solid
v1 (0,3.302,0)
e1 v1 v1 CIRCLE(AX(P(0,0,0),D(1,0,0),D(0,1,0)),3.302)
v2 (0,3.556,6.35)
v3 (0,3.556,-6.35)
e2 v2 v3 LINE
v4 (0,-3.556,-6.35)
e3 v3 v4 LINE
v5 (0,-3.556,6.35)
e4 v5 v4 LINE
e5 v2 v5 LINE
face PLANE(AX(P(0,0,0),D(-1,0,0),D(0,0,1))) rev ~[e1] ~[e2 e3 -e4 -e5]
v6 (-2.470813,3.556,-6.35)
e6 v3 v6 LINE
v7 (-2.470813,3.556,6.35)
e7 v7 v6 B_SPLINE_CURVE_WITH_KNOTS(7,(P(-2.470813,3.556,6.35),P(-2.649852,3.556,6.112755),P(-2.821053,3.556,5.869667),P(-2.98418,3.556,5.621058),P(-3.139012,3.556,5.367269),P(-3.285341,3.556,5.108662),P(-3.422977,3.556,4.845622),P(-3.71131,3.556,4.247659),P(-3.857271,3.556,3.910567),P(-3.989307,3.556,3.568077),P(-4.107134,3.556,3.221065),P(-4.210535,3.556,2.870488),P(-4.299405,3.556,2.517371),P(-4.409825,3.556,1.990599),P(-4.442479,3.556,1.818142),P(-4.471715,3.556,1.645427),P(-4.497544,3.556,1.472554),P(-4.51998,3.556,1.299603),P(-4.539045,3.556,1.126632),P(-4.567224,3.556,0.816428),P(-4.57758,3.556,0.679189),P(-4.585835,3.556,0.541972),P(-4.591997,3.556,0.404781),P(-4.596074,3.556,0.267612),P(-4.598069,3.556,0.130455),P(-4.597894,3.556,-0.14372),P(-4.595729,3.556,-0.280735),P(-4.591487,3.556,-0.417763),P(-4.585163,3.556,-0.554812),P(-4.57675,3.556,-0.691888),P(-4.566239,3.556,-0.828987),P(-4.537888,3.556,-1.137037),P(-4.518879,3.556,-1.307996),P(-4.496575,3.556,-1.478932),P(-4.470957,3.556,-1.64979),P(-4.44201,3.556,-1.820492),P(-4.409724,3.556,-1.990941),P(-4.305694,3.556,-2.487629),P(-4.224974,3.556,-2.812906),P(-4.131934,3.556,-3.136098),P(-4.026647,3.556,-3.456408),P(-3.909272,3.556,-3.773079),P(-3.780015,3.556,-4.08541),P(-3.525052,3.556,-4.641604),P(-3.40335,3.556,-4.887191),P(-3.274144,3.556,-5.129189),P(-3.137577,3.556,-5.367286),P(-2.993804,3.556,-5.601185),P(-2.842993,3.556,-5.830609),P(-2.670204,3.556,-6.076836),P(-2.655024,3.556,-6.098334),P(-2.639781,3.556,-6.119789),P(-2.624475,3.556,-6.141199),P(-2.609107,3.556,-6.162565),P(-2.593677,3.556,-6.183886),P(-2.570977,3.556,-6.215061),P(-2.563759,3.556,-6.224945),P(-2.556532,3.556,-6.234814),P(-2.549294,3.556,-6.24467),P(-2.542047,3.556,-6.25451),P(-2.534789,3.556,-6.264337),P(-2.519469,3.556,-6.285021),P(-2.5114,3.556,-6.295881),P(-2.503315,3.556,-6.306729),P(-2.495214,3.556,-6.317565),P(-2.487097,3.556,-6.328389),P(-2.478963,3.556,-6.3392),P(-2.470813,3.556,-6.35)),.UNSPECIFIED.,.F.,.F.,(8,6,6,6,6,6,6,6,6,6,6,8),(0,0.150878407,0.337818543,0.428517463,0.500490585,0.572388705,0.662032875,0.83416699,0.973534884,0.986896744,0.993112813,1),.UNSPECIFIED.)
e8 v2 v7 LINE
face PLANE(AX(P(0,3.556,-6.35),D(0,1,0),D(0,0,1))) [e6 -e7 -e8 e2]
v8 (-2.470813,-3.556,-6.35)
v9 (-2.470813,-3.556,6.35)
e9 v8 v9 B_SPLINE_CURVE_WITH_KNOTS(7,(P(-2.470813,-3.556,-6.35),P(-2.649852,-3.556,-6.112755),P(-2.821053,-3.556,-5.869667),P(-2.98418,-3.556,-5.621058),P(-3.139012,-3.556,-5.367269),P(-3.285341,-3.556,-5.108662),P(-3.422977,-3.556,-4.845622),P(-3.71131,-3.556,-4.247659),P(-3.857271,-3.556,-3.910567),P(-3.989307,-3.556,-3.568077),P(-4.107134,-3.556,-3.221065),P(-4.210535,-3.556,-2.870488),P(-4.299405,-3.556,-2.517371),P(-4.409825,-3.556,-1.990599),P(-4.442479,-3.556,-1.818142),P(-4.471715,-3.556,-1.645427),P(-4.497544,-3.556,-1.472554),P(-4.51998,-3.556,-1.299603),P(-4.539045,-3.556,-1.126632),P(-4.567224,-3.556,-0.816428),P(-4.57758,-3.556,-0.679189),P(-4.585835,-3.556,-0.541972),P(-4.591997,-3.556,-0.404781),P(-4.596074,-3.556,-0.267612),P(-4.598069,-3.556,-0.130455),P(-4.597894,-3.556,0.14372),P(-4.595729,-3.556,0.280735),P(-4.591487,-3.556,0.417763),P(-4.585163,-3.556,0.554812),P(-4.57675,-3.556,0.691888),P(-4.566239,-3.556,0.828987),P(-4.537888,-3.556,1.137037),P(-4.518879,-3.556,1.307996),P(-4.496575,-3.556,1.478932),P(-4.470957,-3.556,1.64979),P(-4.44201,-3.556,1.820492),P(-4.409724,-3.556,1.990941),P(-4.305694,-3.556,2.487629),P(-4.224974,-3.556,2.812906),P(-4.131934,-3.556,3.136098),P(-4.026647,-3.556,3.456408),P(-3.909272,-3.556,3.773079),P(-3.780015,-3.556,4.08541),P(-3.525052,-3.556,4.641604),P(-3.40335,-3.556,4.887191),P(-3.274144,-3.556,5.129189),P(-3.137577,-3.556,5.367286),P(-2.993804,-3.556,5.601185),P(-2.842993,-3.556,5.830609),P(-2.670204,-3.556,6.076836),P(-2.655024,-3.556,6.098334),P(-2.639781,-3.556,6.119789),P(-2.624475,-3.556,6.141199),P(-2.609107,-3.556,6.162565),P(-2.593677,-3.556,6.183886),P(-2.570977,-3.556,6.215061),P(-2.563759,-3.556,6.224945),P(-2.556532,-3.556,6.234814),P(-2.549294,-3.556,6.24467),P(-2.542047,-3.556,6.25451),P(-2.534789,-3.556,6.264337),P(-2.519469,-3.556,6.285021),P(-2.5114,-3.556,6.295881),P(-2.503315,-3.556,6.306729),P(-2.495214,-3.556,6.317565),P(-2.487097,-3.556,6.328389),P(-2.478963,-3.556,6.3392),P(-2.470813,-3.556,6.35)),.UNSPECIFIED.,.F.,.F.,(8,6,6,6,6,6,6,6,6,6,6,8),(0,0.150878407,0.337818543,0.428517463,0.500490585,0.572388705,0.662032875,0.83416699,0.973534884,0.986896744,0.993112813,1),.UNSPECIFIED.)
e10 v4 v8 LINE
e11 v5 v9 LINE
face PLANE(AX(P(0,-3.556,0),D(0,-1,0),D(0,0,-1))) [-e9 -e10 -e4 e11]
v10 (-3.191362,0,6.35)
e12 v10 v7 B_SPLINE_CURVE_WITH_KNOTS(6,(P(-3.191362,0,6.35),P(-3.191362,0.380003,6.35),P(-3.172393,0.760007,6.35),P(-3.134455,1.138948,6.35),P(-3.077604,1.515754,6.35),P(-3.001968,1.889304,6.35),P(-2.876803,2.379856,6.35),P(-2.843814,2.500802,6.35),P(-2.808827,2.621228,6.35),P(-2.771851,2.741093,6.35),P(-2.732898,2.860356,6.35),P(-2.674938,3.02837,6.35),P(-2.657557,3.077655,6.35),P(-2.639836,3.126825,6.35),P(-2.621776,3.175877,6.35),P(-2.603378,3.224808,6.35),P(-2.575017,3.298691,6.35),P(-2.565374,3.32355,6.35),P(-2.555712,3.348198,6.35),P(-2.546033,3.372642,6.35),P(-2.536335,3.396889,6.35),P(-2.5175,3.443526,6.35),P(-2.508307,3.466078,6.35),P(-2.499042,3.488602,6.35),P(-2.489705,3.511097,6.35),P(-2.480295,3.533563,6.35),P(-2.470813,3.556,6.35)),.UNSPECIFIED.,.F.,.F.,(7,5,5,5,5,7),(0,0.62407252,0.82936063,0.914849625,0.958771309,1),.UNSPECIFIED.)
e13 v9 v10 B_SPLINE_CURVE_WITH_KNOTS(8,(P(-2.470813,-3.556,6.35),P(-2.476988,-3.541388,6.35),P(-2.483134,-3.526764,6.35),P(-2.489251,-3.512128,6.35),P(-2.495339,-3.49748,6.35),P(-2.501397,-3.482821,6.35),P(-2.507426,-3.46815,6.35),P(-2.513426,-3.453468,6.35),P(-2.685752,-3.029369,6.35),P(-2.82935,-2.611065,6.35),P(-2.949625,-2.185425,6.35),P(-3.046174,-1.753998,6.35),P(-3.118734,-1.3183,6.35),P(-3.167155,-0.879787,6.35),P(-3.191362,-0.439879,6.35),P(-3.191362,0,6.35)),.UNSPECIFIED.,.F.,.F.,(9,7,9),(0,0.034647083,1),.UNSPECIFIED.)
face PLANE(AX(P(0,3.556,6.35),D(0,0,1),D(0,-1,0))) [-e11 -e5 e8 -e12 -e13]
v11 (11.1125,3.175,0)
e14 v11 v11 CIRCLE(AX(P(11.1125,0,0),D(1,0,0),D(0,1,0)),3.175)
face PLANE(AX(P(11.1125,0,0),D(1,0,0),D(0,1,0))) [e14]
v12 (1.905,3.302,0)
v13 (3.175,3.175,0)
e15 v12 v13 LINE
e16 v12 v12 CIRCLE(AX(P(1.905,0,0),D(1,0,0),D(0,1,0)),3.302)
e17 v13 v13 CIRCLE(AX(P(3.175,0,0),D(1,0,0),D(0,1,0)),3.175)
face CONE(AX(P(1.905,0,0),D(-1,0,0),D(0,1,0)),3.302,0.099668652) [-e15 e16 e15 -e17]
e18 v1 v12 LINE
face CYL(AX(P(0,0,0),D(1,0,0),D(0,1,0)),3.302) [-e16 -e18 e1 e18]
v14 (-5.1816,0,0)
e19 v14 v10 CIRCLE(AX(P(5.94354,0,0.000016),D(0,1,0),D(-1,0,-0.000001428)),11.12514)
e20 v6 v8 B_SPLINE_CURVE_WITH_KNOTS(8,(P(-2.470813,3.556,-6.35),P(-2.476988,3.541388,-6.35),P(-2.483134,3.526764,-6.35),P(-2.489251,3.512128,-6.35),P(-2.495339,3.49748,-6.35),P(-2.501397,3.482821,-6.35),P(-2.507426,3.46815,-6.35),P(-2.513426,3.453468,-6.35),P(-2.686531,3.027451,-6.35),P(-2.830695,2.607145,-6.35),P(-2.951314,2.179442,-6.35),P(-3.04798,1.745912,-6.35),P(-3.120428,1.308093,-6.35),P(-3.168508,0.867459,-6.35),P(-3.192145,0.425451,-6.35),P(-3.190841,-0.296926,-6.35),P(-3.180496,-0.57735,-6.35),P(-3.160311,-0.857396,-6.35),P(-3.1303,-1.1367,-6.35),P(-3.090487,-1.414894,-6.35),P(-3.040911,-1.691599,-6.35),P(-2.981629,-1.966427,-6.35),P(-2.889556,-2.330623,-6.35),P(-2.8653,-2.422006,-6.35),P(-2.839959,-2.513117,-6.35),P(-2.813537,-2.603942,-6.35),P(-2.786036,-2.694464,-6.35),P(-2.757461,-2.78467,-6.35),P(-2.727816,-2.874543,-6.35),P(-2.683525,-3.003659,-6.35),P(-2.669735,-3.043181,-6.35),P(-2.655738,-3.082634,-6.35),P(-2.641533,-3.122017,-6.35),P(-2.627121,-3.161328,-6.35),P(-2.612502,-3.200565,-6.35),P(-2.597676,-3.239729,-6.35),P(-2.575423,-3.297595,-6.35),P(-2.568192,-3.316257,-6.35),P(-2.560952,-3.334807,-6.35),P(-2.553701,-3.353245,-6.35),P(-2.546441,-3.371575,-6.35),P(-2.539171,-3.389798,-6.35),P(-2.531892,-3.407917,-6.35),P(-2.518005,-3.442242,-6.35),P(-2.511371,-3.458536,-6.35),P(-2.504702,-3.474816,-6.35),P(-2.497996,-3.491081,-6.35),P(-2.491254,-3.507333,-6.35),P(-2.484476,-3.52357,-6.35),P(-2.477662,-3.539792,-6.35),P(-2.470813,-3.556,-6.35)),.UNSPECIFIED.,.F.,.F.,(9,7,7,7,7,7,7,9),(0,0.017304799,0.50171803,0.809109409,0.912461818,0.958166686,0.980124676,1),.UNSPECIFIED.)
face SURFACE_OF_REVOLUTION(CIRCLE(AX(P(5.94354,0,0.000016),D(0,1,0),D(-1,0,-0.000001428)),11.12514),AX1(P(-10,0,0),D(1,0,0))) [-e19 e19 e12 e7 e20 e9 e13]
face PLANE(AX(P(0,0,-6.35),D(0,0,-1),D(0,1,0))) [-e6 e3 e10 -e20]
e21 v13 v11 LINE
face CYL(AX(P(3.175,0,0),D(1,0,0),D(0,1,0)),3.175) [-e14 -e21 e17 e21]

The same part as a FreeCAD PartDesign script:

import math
import FreeCAD as App
import Part
import Sketcher
Q = App.Units.Quantity

doc = App.newDocument("Part")
params = doc.addObject("Spreadsheet::Sheet", "Params")
for row, (alias, value) in enumerate([
    ("sketch1_width", "0.4375 in"),
    ("sketch1_width2", "0.3125 in"),
    ("sketch1_height", "0.13 in"),
    ("sketch1_height2", "0.125 in"),
    ("revolution_angle", "360 deg"),
    ("sketch2_height", "0.5 in"),
    ("sketch2_width", "0.28 in"),
    ("pad1_length", "0.204 in"),
    ("sketch3_radius", "0.438 in"),
    ("sketch3_height", "0.375 in"),
    ("groove_angle", "360 deg"),
], start=1):
    params.set(f"A{row}", alias)
    params.set(f"B{row}", "=" + value)
    params.setAlias(f"B{row}", alias)

body = doc.addObject("PartDesign::Body", "Body")

sketch1 = doc.addObject("Sketcher::SketchObject", "Sketch")
body.addObject(sketch1)
sketch1.AttachmentSupport = (doc.XY_Plane, [""])
sketch1.MapMode = "FlatFace"
sketch1.addGeometry([
    Part.LineSegment(App.Vector(1.9, 3.3, 0), App.Vector(0, 3.3, 0)),
    Part.LineSegment(App.Vector(0, 3.3, 0), App.Vector(0, 0, 0)),
    Part.LineSegment(App.Vector(0, 0, 0), App.Vector(11.1, 0, 0)),
    Part.LineSegment(App.Vector(11.1, 0, 0), App.Vector(11.1, 3.2, 0)),
    Part.LineSegment(App.Vector(11.1, 3.2, 0), App.Vector(3.2, 3.2, 0)),
    Part.LineSegment(App.Vector(3.2, 3.2, 0), App.Vector(1.9, 3.3, 0)),
], False)
sketch1.addConstraint([
    Sketcher.Constraint("Coincident", 0, 2, 1, 1),
    Sketcher.Constraint("Coincident", 1, 2, 2, 1),
    Sketcher.Constraint("Coincident", 2, 2, 3, 1),
    Sketcher.Constraint("Coincident", 3, 2, 4, 1),
    Sketcher.Constraint("Coincident", 4, 2, 5, 1),
    Sketcher.Constraint("Coincident", 5, 2, 0, 1),
    Sketcher.Constraint("Horizontal", 0),
    Sketcher.Constraint("Vertical", 1),
    Sketcher.Constraint("Horizontal", 2),
    Sketcher.Constraint("Vertical", 3),
    Sketcher.Constraint("Horizontal", 4),
    Sketcher.Constraint("Coincident", 1, 2, -1, 1),
    Sketcher.Constraint("DistanceX", 2, 1, 2, 2, Q("0.4375 in")),
    Sketcher.Constraint("DistanceX", 4, 2, 4, 1, Q("0.3125 in")),
    Sketcher.Constraint("DistanceX", 5, 2, 4, 2, Q("0.05 in")),
    Sketcher.Constraint("DistanceY", 1, 2, 1, 1, Q("0.13 in")),
    Sketcher.Constraint("DistanceY", 3, 1, 3, 2, Q("0.125 in")),
])
sketch1.setExpression("Constraints[12]", "Params.sketch1_width")
sketch1.setExpression("Constraints[13]", "Params.sketch1_width2")
sketch1.setExpression("Constraints[15]", "Params.sketch1_height")
sketch1.setExpression("Constraints[16]", "Params.sketch1_height2")
revolution = doc.addObject("PartDesign::Revolution", "Revolution")
body.addObject(revolution)
revolution.Profile = sketch1
revolution.ReferenceAxis = (sketch1, ["H_Axis"])
revolution.setExpression("Angle", "Params.revolution_angle")

sketch2 = doc.addObject("Sketcher::SketchObject", "Sketch001")
body.addObject(sketch2)
sketch2.AttachmentSupport = (doc.YZ_Plane, [""])
sketch2.MapMode = "FlatFace"
sketch2.addGeometry([
    Part.LineSegment(App.Vector(4, -6, 0), App.Vector(-4, -6, 0)),
    Part.LineSegment(App.Vector(-4, -6, 0), App.Vector(-4, 6, 0)),
    Part.LineSegment(App.Vector(-4, 6, 0), App.Vector(4, 6, 0)),
    Part.LineSegment(App.Vector(4, 6, 0), App.Vector(4, -6, 0)),
], False)
sketch2.addConstraint([
    Sketcher.Constraint("Coincident", 0, 2, 1, 1),
    Sketcher.Constraint("Coincident", 1, 2, 2, 1),
    Sketcher.Constraint("Coincident", 2, 2, 3, 1),
    Sketcher.Constraint("Coincident", 3, 2, 0, 1),
    Sketcher.Constraint("Horizontal", 0),
    Sketcher.Constraint("Vertical", 1),
    Sketcher.Constraint("Horizontal", 2),
    Sketcher.Constraint("Vertical", 3),
    Sketcher.Constraint("Symmetric", 0, 2, 2, 2, -1, 1),
    Sketcher.Constraint("DistanceY", 1, 1, 1, 2, Q("0.5 in")),
    Sketcher.Constraint("DistanceX", 0, 2, 0, 1, Q("0.28 in")),
])
sketch2.setExpression("Constraints[9]", "Params.sketch2_height")
sketch2.setExpression("Constraints[10]", "Params.sketch2_width")
pad1 = doc.addObject("PartDesign::Pad", "Pad")
body.addObject(pad1)
pad1.Profile = sketch2
pad1.setExpression("Length", "Params.pad1_length")
pad1.Reversed = True

sketch3 = doc.addObject("Sketcher::SketchObject", "Sketch002")
body.addObject(sketch3)
sketch3.AttachmentSupport = (doc.XZ_Plane, [""])
sketch3.MapMode = "FlatFace"
sketch3.addGeometry([
    Part.LineSegment(App.Vector(-5, 0, 0), App.Vector(-5, 10, 0)),
    Part.LineSegment(App.Vector(-5, 10, 0), App.Vector(0, 10, 0)),
    Part.ArcOfCircle(Part.Circle(App.Vector(6, 0, 0), App.Vector(0, 0, 1), 11), math.radians(121), math.radians(180)),
], False)
sketch3.addConstraint([
    Sketcher.Constraint("Coincident", 0, 2, 1, 1),
    Sketcher.Constraint("Coincident", 1, 2, 2, 1),
    Sketcher.Constraint("Tangent", 2, 2, 0, 1),
    Sketcher.Constraint("Vertical", 0),
    Sketcher.Constraint("Horizontal", 1),
    Sketcher.Constraint("PointOnObject", 2, 3, -1),
    Sketcher.Constraint("Radius", 2, Q("0.438 in")),
    Sketcher.Constraint("DistanceY", 0, 1, 0, 2, Q("0.375 in")),
    Sketcher.Constraint("DistanceX", -1, 1, 2, 3, Q("0.234 in")),
])
sketch3.setExpression("Constraints[6]", "Params.sketch3_radius")
sketch3.setExpression("Constraints[7]", "Params.sketch3_height")
groove = doc.addObject("PartDesign::Groove", "Groove")
body.addObject(groove)
groove.Profile = sketch3
groove.ReferenceAxis = (sketch3, ["H_Axis"])
groove.setExpression("Angle", "Params.groove_angle")

doc.recompute()
